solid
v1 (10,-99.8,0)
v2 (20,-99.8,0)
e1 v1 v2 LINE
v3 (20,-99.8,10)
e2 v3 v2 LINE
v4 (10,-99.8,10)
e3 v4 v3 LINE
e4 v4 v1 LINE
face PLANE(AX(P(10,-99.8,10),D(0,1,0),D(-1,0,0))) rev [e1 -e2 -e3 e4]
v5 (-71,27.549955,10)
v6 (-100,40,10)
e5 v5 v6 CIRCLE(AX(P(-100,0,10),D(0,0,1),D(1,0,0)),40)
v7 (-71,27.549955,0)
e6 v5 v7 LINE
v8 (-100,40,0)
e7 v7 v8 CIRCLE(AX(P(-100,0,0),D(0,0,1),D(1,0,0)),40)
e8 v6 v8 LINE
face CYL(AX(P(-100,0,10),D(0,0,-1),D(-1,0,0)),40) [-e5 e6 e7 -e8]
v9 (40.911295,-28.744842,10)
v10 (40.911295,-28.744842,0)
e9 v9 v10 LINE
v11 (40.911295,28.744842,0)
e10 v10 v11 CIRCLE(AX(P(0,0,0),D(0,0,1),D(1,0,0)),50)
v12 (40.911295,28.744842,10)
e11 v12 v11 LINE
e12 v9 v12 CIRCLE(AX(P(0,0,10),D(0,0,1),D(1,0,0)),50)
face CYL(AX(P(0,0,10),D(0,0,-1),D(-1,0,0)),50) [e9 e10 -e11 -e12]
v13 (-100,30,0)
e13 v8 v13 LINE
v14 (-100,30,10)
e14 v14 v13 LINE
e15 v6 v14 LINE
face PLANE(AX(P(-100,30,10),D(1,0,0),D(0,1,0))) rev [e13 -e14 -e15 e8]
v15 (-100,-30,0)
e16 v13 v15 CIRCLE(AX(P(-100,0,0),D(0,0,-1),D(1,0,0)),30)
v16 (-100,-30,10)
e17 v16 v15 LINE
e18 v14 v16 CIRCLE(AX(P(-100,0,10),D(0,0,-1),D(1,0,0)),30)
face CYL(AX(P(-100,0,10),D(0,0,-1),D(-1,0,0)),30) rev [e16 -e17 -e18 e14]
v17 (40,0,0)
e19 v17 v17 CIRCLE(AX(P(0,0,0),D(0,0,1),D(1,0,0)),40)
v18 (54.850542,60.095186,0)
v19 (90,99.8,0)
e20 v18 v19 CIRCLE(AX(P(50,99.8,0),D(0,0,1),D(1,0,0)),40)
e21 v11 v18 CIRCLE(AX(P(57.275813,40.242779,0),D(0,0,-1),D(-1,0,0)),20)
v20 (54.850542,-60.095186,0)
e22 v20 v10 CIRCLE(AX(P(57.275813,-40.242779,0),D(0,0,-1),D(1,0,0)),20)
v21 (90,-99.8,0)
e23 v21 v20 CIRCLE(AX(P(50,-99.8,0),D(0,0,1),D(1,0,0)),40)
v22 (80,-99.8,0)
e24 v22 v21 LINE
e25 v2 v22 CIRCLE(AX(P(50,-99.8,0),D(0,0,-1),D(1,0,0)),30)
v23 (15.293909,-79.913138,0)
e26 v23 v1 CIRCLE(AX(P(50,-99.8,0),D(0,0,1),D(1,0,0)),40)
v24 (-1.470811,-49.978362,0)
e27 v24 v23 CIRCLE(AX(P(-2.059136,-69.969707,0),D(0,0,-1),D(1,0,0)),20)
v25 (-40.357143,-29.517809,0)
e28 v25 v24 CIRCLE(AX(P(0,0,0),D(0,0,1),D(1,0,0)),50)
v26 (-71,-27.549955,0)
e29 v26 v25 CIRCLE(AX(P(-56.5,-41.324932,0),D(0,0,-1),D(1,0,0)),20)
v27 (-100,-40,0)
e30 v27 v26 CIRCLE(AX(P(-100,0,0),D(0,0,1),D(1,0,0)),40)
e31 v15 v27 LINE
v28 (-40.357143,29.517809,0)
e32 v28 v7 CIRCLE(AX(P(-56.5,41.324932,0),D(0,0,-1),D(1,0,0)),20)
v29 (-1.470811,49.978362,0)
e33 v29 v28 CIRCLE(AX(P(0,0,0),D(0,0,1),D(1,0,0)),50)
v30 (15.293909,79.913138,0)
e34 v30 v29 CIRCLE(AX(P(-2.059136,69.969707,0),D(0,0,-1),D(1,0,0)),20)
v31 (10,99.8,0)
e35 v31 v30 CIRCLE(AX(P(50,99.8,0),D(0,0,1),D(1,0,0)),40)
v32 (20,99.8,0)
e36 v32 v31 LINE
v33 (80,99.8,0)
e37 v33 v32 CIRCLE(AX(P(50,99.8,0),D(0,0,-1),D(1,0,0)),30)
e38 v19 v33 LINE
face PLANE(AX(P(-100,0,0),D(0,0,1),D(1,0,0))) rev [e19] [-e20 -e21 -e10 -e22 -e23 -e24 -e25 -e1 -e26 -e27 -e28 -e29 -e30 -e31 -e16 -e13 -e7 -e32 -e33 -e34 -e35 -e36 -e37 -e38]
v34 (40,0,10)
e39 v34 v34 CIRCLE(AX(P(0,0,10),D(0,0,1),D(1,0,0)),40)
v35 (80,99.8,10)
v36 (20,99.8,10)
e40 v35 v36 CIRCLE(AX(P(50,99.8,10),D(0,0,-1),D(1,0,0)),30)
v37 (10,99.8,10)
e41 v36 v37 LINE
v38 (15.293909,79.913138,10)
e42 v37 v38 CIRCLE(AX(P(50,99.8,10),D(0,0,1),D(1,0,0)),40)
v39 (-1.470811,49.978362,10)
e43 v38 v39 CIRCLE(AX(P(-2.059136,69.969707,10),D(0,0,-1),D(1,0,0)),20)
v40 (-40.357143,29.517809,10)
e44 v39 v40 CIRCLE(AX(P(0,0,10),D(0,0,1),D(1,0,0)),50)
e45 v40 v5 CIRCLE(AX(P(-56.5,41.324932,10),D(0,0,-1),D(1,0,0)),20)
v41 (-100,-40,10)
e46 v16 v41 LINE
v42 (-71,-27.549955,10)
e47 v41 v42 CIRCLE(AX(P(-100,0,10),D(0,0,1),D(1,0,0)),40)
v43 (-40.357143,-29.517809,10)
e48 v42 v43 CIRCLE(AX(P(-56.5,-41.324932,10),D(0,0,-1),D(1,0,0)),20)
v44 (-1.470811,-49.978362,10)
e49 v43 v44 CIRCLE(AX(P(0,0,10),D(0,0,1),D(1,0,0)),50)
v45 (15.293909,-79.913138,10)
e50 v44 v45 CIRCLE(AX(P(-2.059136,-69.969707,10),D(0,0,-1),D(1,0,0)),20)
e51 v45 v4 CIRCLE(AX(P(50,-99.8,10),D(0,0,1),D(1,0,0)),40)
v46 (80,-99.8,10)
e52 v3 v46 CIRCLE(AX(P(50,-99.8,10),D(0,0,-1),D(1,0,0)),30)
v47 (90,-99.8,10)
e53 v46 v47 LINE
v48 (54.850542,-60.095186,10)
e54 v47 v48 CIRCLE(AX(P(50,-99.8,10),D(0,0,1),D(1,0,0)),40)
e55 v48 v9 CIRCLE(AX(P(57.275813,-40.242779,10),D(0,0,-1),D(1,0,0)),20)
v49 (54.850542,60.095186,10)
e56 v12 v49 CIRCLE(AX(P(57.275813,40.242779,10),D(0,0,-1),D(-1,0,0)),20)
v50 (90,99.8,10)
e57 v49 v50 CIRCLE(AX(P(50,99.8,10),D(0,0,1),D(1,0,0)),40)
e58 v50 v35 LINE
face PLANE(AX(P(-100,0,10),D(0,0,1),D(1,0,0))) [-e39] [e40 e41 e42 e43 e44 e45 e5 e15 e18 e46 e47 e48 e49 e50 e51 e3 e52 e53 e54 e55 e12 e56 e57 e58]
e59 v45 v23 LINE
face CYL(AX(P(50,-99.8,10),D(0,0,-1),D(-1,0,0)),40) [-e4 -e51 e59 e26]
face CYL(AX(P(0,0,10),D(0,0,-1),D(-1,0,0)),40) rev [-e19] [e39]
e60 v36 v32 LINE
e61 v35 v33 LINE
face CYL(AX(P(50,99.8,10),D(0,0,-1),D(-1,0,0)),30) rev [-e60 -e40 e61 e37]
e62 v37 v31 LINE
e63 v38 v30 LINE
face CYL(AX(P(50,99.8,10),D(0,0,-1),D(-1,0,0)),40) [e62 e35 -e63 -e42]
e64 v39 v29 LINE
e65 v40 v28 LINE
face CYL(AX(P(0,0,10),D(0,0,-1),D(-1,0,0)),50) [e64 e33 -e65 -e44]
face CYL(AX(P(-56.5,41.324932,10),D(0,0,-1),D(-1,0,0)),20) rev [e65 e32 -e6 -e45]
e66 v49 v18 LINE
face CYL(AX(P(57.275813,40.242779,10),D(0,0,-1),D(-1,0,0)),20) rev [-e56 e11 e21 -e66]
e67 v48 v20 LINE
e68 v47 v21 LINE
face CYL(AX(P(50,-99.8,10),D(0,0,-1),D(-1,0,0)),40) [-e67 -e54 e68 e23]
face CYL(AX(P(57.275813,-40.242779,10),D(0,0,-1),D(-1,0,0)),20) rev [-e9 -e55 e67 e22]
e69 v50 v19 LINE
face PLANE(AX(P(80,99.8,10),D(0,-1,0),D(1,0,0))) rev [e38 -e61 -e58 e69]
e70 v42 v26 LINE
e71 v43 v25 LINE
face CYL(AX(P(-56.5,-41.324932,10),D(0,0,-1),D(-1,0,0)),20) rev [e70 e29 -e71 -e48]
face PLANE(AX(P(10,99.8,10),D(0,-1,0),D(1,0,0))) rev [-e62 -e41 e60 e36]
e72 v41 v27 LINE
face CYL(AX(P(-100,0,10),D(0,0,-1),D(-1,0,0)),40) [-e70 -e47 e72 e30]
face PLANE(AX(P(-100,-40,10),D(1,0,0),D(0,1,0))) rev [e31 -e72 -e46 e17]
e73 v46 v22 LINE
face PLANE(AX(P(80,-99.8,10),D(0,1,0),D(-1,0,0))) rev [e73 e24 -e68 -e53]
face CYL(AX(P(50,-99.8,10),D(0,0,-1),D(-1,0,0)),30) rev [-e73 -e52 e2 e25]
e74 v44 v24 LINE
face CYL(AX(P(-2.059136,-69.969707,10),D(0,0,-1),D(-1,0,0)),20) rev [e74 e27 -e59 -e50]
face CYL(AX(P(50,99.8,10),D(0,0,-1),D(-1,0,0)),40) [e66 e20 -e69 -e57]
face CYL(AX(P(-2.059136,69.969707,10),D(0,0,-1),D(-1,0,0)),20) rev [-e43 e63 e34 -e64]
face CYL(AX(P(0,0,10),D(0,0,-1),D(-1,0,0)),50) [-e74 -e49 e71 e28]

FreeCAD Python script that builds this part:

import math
import FreeCAD as App
import Part
import Sketcher

V = App.Vector

doc = App.newDocument("Part")
params = doc.addObject("Spreadsheet::Sheet", "Params")
for row, (alias, value) in enumerate([
    ("sketch1_diameter", "80 mm"),
    ("sketch1_radius", "20 mm"),
    ("sketch1_radius2", "50 mm"),
    ("sketch1_radius3", "30 mm"),
    ("pad1_length", "10 mm"),
], start=1):
    params.set(f"A{row}", alias)
    params.set(f"B{row}", "=" + value)
    params.setAlias(f"B{row}", alias)

body = doc.addObject("PartDesign::Body", "Body")

# Sketch on XY plane
sketch1 = doc.addObject("Sketcher::SketchObject", "Sketch")
body.addObject(sketch1)
sketch1.AttachmentSupport = (doc.XY_Plane, [""])
sketch1.MapMode = "FlatFace"
sketch1.addGeometry([
    Part.LineSegment(V(-100, -30, 0), V(-100, -40, 0)),  # 0
    Part.ArcOfCircle(Part.Circle(V(-100, 0, 0), V(0, 0, 1), 40), math.radians(-90), math.radians(-43.531152)),  # 1
    Part.ArcOfCircle(Part.Circle(V(-56.5, -41.324932, 0), V(0, 0, 1), 20), math.radians(36.182287), math.radians(136.468848)),  # 2
    Part.ArcOfCircle(Part.Circle(V(0, 0, 0), V(0, 0, 1), 50), math.radians(-143.817713), math.radians(-91.685669)),  # 3
    Part.ArcOfCircle(Part.Circle(V(-2.059136, -69.969707, 0), V(0, 0, 1), 20), math.radians(-29.813047), math.radians(88.314331)),  # 4
    Part.ArcOfCircle(Part.Circle(V(50, -99.8, 0), V(0, 0, 1), 40), math.radians(150.186953), math.radians(180)),  # 5
    Part.LineSegment(V(10, -99.8, 0), V(20, -99.8, 0)),  # 6
    Part.ArcOfCircle(Part.Circle(V(50, -99.8, 0), V(0, 0, 1), 30), math.radians(0), math.radians(180)),  # 7
    Part.LineSegment(V(80, -99.8, 0), V(90, -99.8, 0)),  # 8
    Part.ArcOfCircle(Part.Circle(V(50, -99.8, 0), V(0, 0, 1), 40), math.radians(0), math.radians(83.034969)),  # 9
    Part.ArcOfCircle(Part.Circle(V(57.275813, -40.242779, 0), V(0, 0, 1), 20), math.radians(144.907591), math.radians(263.034969)),  # 10
    Part.ArcOfCircle(Part.Circle(V(0, 0, 0), V(0, 0, 1), 50), math.radians(-35.092409), math.radians(35.092409)),  # 11
    Part.ArcOfCircle(Part.Circle(V(57.275813, 40.242779, 0), V(0, 0, 1), 20), math.radians(96.965031), math.radians(215.092409)),  # 12
    Part.ArcOfCircle(Part.Circle(V(50, 99.8, 0), V(0, 0, 1), 40), math.radians(-83.034969), math.radians(0)),  # 13
    Part.LineSegment(V(90, 99.8, 0), V(80, 99.8, 0)),  # 14
    Part.ArcOfCircle(Part.Circle(V(50, 99.8, 0), V(0, 0, 1), 30), math.radians(180), math.radians(360)),  # 15
    Part.LineSegment(V(20, 99.8, 0), V(10, 99.8, 0)),  # 16
    Part.ArcOfCircle(Part.Circle(V(50, 99.8, 0), V(0, 0, 1), 40), math.radians(180), math.radians(209.813047)),  # 17
    Part.ArcOfCircle(Part.Circle(V(-2.059136, 69.969707, 0), V(0, 0, 1), 20), math.radians(-88.314331), math.radians(29.813047)),  # 18
    Part.ArcOfCircle(Part.Circle(V(0, 0, 0), V(0, 0, 1), 50), math.radians(91.685669), math.radians(143.817713)),  # 19
    Part.ArcOfCircle(Part.Circle(V(-56.5, 41.324932, 0), V(0, 0, 1), 20), math.radians(-136.468848), math.radians(-36.182287)),  # 20
    Part.ArcOfCircle(Part.Circle(V(-100, 0, 0), V(0, 0, 1), 40), math.radians(43.531152), math.radians(90)),  # 21
    Part.LineSegment(V(-100, 40, 0), V(-100, 30, 0)),  # 22
    Part.ArcOfCircle(Part.Circle(V(-100, 0, 0), V(0, 0, 1), 30), math.radians(-90), math.radians(90)),  # 23
    Part.Circle(V(0, 0, 0), V(0, 0, 1), 40),  # 24
], False)
sketch1.addConstraint([
    Sketcher.Constraint("Coincident", 0, 2, 1, 1),
    Sketcher.Constraint("Tangent", 1, 2, 2, 2),
    Sketcher.Constraint("Tangent", 2, 1, 3, 1),
    Sketcher.Constraint("Tangent", 3, 2, 4, 2),
    Sketcher.Constraint("Tangent", 4, 1, 5, 1),
    Sketcher.Constraint("Coincident", 5, 2, 6, 1),
    Sketcher.Constraint("Coincident", 6, 2, 7, 2),
    Sketcher.Constraint("Coincident", 7, 1, 8, 1),
    Sketcher.Constraint("Coincident", 8, 2, 9, 1),
    Sketcher.Constraint("Tangent", 9, 2, 10, 2),
    Sketcher.Constraint("Tangent", 10, 1, 11, 1),
    Sketcher.Constraint("Tangent", 11, 2, 12, 2),
    Sketcher.Constraint("Tangent", 12, 1, 13, 1),
    Sketcher.Constraint("Coincident", 13, 2, 14, 1),
    Sketcher.Constraint("Coincident", 14, 2, 15, 2),
    Sketcher.Constraint("Coincident", 15, 1, 16, 1),
    Sketcher.Constraint("Coincident", 16, 2, 17, 1),
    Sketcher.Constraint("Tangent", 17, 2, 18, 2),
    Sketcher.Constraint("Tangent", 18, 1, 19, 1),
    Sketcher.Constraint("Tangent", 19, 2, 20, 2),
    Sketcher.Constraint("Tangent", 20, 1, 21, 1),
    Sketcher.Constraint("Coincident", 21, 2, 22, 1),
    Sketcher.Constraint("Coincident", 22, 2, 23, 2),
    Sketcher.Constraint("Coincident", 23, 1, 0, 1),
    Sketcher.Constraint("Vertical", 0),
    Sketcher.Constraint("Horizontal", 6),
    Sketcher.Constraint("Horizontal", 8),
    Sketcher.Constraint("Horizontal", 14),
    Sketcher.Constraint("Horizontal", 16),
    Sketcher.Constraint("Vertical", 22),
    Sketcher.Constraint("Coincident", 3, 3, -1, 1),
    Sketcher.Constraint("Coincident", 11, 3, -1, 1),
    Sketcher.Constraint("Coincident", 19, 3, -1, 1),
    Sketcher.Constraint("Coincident", 24, 3, -1, 1),
    Sketcher.Constraint("Coincident", 7, 3, 5, 3),
    Sketcher.Constraint("Coincident", 9, 3, 5, 3),
    Sketcher.Constraint("Coincident", 15, 3, 13, 3),
    Sketcher.Constraint("Coincident", 17, 3, 13, 3),
    Sketcher.Constraint("Coincident", 21, 3, 1, 3),
    Sketcher.Constraint("Coincident", 23, 3, 1, 3),
    Sketcher.Constraint("Equal", 2, 4),
    Sketcher.Constraint("Equal", 1, 5),
    Sketcher.Constraint("Equal", 5, 9),
    Sketcher.Constraint("Equal", 4, 10),
    Sketcher.Constraint("Equal", 3, 11),
    Sketcher.Constraint("Equal", 10, 12),
    Sketcher.Constraint("Equal", 9, 13),
    Sketcher.Constraint("Equal", 7, 15),
    Sketcher.Constraint("Equal", 13, 17),
    Sketcher.Constraint("Equal", 12, 18),
    Sketcher.Constraint("Equal", 11, 19),
    Sketcher.Constraint("Equal", 18, 20),
    Sketcher.Constraint("Equal", 17, 21),
    Sketcher.Constraint("Equal", 15, 23),
    Sketcher.Constraint("Equal", 21, 24),
    Sketcher.Constraint("Symmetric", 5, 3, 13, 3, -1),
    Sketcher.Constraint("Symmetric", 0, 2, 21, 2, -1),
    Sketcher.Constraint("Horizontal", 9, 3, 5, 2),
    Sketcher.Constraint("Horizontal", 6, 2, 7, 1),
    Sketcher.Constraint("Horizontal", 17, 3, 13, 2),
    Sketcher.Constraint("Horizontal", 14, 2, 15, 1),
    Sketcher.Constraint("Vertical", 23, 3, 0, 2),
    Sketcher.Constraint("Diameter", 24, 80.0),
    Sketcher.Constraint("Radius", 2, 20.0),
    Sketcher.Constraint("Radius", 3, 50.0),
    Sketcher.Constraint("Radius", 7, 30.0),
    Sketcher.Constraint("DistanceX", 1, 3, -1, 1, 100.0),
    Sketcher.Constraint("DistanceX", -1, 1, 5, 3, 50.0),
    Sketcher.Constraint("DistanceY", 5, 3, -1, 1, 99.8),
])
sketch1.setExpression("Constraints[62]", "Params.sketch1_diameter")
sketch1.setExpression("Constraints[63]", "Params.sketch1_radius")
sketch1.setExpression("Constraints[64]", "Params.sketch1_radius2")
sketch1.setExpression("Constraints[65]", "Params.sketch1_radius3")
pad1 = doc.addObject("PartDesign::Pad", "Pad")
body.addObject(pad1)
pad1.Profile = sketch1
pad1.setExpression("Length", "Params.pad1_length")

doc.recompute()
